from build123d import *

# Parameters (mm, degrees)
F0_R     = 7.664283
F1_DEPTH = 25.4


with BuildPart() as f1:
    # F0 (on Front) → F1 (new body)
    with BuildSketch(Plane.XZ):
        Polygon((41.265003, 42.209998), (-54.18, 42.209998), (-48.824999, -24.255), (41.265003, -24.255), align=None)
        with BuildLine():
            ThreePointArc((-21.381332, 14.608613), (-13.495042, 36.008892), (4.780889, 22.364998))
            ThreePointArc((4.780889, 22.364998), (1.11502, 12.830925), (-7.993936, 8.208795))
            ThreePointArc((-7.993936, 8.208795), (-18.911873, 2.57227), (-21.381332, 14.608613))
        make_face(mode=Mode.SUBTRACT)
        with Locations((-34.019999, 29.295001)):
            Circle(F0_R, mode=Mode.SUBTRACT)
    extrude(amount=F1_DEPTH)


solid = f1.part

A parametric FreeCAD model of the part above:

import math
import FreeCAD as App
import Part
import Sketcher
from FreeCAD import Vector


def add_polygon(sketch, points):
    """Adds a closed chain of lines whose ends are joined by coincident constraints."""
    first, n = sketch.GeometryCount, len(points)
    for a, b in zip(points, points[1:] + points[:1]):
        sketch.addGeometry(Part.LineSegment(App.Vector(*a, 0), App.Vector(*b, 0)), False)
    for i in range(n):
        sketch.addConstraint(Sketcher.Constraint("Coincident", first + i, 2, first + (i + 1) % n, 1))

doc = App.newDocument("Part")
params = doc.addObject("Spreadsheet::Sheet", "Params")
for row, (alias, value) in enumerate([
    ("pad1_length", "1 in"),
], start=1):
    params.set(f"A{row}", alias)
    params.set(f"B{row}", "=" + value)
    params.setAlias(f"B{row}", alias)

body = doc.addObject("PartDesign::Body", "Body")

sketch1 = doc.addObject("Sketcher::SketchObject", "Sketch")
body.addObject(sketch1)
sketch1.AttachmentSupport = (doc.XZ_Plane, [""])
sketch1.MapMode = "FlatFace"
add_polygon(sketch1, [(41.265003, 42.209998), (-54.18, 42.209998), (-48.824999, -24.255), (41.265003, -24.255)])
sketch1.addGeometry(Part.ArcOfCircle(Part.Circle(Vector(-15.58777, 9.525763, 0), Vector(0, 0, 1), 7.707186), math.radians(138.738638), math.radians(350.161284)), False)
sketch1.addGeometry(Part.ArcOfCircle(Part.Circle(Vector(-9.45, 22.364998, 0), Vector(0, 0, 1), 14.230889), math.radians(-0.000001), math.radians(213.027309)), False)
sketch1.addGeometry(Part.ArcOfCircle(Part.Circle(Vector(-9.450001, 22.364999, 0), Vector(0, 0, 1), 14.23089), math.radians(-84.127379), math.radians(-0.000003)), False)
sketch1.addGeometry(Part.Circle(Vector(-34.019999, 29.295001, 0), Vector(0, 0, 1), 7.664283), False)
sketch1.addConstraint(Sketcher.Constraint("Coincident", 4, 1, 5, 2))
sketch1.addConstraint(Sketcher.Constraint("Tangent", 5, 1, 6, 2))
sketch1.addConstraint(Sketcher.Constraint("Coincident", 6, 1, 4, 2))
sketch1.addConstraint(Sketcher.Constraint("Horizontal", 0))
sketch1.addConstraint(Sketcher.Constraint("Horizontal", 2))
sketch1.addConstraint(Sketcher.Constraint("Vertical", 3))
sketch1.addConstraint(Sketcher.Constraint("Equal", 5, 6))
sketch1.addConstraint(Sketcher.Constraint("Horizontal", 6, 3, 5, 1))
sketch1.addConstraint(Sketcher.Constraint("Radius", 5, 14.230889))
sketch1.addConstraint(Sketcher.Constraint("Diameter", 7, 15.328566))
sketch1.addConstraint(Sketcher.Constraint("DistanceX", 2, 1, 2, 2, 90.090002))
sketch1.addConstraint(Sketcher.Constraint("Radius", 4, 7.707186))
sketch1.addConstraint(Sketcher.Constraint("DistanceX", 5, 3, -1, 1, 9.45))
sketch1.addConstraint(Sketcher.Constraint("DistanceY", -1, 1, 5, 3, 22.364998))
sketch1.addConstraint(Sketcher.Constraint("DistanceX", 7, 3, -1, 1, 34.019999))
sketch1.addConstraint(Sketcher.Constraint("DistanceY", -1, 1, 7, 3, 29.295001))
sketch1.addConstraint(Sketcher.Constraint("DistanceX", 0, 2, -1, 1, 54.18))
sketch1.addConstraint(Sketcher.Constraint("DistanceX", 1, 2, -1, 1, 48.824999))
sketch1.addConstraint(Sketcher.Constraint("DistanceY", 1, 2, -1, 1, 24.255))
sketch1.addConstraint(Sketcher.Constraint("DistanceY", 6, 3, 0, 2, 19.844999))
sketch1.addConstraint(Sketcher.Constraint("DistanceX", 4, 3, -1, 1, 15.58777))
sketch1.addConstraint(Sketcher.Constraint("DistanceX", 4, 1, -1, 1, 21.381332))
pad1 = doc.addObject("PartDesign::Pad", "Pad")
body.addObject(pad1)
pad1.Profile = sketch1
pad1.setExpression("Length", "Params.pad1_length")

doc.recompute()
